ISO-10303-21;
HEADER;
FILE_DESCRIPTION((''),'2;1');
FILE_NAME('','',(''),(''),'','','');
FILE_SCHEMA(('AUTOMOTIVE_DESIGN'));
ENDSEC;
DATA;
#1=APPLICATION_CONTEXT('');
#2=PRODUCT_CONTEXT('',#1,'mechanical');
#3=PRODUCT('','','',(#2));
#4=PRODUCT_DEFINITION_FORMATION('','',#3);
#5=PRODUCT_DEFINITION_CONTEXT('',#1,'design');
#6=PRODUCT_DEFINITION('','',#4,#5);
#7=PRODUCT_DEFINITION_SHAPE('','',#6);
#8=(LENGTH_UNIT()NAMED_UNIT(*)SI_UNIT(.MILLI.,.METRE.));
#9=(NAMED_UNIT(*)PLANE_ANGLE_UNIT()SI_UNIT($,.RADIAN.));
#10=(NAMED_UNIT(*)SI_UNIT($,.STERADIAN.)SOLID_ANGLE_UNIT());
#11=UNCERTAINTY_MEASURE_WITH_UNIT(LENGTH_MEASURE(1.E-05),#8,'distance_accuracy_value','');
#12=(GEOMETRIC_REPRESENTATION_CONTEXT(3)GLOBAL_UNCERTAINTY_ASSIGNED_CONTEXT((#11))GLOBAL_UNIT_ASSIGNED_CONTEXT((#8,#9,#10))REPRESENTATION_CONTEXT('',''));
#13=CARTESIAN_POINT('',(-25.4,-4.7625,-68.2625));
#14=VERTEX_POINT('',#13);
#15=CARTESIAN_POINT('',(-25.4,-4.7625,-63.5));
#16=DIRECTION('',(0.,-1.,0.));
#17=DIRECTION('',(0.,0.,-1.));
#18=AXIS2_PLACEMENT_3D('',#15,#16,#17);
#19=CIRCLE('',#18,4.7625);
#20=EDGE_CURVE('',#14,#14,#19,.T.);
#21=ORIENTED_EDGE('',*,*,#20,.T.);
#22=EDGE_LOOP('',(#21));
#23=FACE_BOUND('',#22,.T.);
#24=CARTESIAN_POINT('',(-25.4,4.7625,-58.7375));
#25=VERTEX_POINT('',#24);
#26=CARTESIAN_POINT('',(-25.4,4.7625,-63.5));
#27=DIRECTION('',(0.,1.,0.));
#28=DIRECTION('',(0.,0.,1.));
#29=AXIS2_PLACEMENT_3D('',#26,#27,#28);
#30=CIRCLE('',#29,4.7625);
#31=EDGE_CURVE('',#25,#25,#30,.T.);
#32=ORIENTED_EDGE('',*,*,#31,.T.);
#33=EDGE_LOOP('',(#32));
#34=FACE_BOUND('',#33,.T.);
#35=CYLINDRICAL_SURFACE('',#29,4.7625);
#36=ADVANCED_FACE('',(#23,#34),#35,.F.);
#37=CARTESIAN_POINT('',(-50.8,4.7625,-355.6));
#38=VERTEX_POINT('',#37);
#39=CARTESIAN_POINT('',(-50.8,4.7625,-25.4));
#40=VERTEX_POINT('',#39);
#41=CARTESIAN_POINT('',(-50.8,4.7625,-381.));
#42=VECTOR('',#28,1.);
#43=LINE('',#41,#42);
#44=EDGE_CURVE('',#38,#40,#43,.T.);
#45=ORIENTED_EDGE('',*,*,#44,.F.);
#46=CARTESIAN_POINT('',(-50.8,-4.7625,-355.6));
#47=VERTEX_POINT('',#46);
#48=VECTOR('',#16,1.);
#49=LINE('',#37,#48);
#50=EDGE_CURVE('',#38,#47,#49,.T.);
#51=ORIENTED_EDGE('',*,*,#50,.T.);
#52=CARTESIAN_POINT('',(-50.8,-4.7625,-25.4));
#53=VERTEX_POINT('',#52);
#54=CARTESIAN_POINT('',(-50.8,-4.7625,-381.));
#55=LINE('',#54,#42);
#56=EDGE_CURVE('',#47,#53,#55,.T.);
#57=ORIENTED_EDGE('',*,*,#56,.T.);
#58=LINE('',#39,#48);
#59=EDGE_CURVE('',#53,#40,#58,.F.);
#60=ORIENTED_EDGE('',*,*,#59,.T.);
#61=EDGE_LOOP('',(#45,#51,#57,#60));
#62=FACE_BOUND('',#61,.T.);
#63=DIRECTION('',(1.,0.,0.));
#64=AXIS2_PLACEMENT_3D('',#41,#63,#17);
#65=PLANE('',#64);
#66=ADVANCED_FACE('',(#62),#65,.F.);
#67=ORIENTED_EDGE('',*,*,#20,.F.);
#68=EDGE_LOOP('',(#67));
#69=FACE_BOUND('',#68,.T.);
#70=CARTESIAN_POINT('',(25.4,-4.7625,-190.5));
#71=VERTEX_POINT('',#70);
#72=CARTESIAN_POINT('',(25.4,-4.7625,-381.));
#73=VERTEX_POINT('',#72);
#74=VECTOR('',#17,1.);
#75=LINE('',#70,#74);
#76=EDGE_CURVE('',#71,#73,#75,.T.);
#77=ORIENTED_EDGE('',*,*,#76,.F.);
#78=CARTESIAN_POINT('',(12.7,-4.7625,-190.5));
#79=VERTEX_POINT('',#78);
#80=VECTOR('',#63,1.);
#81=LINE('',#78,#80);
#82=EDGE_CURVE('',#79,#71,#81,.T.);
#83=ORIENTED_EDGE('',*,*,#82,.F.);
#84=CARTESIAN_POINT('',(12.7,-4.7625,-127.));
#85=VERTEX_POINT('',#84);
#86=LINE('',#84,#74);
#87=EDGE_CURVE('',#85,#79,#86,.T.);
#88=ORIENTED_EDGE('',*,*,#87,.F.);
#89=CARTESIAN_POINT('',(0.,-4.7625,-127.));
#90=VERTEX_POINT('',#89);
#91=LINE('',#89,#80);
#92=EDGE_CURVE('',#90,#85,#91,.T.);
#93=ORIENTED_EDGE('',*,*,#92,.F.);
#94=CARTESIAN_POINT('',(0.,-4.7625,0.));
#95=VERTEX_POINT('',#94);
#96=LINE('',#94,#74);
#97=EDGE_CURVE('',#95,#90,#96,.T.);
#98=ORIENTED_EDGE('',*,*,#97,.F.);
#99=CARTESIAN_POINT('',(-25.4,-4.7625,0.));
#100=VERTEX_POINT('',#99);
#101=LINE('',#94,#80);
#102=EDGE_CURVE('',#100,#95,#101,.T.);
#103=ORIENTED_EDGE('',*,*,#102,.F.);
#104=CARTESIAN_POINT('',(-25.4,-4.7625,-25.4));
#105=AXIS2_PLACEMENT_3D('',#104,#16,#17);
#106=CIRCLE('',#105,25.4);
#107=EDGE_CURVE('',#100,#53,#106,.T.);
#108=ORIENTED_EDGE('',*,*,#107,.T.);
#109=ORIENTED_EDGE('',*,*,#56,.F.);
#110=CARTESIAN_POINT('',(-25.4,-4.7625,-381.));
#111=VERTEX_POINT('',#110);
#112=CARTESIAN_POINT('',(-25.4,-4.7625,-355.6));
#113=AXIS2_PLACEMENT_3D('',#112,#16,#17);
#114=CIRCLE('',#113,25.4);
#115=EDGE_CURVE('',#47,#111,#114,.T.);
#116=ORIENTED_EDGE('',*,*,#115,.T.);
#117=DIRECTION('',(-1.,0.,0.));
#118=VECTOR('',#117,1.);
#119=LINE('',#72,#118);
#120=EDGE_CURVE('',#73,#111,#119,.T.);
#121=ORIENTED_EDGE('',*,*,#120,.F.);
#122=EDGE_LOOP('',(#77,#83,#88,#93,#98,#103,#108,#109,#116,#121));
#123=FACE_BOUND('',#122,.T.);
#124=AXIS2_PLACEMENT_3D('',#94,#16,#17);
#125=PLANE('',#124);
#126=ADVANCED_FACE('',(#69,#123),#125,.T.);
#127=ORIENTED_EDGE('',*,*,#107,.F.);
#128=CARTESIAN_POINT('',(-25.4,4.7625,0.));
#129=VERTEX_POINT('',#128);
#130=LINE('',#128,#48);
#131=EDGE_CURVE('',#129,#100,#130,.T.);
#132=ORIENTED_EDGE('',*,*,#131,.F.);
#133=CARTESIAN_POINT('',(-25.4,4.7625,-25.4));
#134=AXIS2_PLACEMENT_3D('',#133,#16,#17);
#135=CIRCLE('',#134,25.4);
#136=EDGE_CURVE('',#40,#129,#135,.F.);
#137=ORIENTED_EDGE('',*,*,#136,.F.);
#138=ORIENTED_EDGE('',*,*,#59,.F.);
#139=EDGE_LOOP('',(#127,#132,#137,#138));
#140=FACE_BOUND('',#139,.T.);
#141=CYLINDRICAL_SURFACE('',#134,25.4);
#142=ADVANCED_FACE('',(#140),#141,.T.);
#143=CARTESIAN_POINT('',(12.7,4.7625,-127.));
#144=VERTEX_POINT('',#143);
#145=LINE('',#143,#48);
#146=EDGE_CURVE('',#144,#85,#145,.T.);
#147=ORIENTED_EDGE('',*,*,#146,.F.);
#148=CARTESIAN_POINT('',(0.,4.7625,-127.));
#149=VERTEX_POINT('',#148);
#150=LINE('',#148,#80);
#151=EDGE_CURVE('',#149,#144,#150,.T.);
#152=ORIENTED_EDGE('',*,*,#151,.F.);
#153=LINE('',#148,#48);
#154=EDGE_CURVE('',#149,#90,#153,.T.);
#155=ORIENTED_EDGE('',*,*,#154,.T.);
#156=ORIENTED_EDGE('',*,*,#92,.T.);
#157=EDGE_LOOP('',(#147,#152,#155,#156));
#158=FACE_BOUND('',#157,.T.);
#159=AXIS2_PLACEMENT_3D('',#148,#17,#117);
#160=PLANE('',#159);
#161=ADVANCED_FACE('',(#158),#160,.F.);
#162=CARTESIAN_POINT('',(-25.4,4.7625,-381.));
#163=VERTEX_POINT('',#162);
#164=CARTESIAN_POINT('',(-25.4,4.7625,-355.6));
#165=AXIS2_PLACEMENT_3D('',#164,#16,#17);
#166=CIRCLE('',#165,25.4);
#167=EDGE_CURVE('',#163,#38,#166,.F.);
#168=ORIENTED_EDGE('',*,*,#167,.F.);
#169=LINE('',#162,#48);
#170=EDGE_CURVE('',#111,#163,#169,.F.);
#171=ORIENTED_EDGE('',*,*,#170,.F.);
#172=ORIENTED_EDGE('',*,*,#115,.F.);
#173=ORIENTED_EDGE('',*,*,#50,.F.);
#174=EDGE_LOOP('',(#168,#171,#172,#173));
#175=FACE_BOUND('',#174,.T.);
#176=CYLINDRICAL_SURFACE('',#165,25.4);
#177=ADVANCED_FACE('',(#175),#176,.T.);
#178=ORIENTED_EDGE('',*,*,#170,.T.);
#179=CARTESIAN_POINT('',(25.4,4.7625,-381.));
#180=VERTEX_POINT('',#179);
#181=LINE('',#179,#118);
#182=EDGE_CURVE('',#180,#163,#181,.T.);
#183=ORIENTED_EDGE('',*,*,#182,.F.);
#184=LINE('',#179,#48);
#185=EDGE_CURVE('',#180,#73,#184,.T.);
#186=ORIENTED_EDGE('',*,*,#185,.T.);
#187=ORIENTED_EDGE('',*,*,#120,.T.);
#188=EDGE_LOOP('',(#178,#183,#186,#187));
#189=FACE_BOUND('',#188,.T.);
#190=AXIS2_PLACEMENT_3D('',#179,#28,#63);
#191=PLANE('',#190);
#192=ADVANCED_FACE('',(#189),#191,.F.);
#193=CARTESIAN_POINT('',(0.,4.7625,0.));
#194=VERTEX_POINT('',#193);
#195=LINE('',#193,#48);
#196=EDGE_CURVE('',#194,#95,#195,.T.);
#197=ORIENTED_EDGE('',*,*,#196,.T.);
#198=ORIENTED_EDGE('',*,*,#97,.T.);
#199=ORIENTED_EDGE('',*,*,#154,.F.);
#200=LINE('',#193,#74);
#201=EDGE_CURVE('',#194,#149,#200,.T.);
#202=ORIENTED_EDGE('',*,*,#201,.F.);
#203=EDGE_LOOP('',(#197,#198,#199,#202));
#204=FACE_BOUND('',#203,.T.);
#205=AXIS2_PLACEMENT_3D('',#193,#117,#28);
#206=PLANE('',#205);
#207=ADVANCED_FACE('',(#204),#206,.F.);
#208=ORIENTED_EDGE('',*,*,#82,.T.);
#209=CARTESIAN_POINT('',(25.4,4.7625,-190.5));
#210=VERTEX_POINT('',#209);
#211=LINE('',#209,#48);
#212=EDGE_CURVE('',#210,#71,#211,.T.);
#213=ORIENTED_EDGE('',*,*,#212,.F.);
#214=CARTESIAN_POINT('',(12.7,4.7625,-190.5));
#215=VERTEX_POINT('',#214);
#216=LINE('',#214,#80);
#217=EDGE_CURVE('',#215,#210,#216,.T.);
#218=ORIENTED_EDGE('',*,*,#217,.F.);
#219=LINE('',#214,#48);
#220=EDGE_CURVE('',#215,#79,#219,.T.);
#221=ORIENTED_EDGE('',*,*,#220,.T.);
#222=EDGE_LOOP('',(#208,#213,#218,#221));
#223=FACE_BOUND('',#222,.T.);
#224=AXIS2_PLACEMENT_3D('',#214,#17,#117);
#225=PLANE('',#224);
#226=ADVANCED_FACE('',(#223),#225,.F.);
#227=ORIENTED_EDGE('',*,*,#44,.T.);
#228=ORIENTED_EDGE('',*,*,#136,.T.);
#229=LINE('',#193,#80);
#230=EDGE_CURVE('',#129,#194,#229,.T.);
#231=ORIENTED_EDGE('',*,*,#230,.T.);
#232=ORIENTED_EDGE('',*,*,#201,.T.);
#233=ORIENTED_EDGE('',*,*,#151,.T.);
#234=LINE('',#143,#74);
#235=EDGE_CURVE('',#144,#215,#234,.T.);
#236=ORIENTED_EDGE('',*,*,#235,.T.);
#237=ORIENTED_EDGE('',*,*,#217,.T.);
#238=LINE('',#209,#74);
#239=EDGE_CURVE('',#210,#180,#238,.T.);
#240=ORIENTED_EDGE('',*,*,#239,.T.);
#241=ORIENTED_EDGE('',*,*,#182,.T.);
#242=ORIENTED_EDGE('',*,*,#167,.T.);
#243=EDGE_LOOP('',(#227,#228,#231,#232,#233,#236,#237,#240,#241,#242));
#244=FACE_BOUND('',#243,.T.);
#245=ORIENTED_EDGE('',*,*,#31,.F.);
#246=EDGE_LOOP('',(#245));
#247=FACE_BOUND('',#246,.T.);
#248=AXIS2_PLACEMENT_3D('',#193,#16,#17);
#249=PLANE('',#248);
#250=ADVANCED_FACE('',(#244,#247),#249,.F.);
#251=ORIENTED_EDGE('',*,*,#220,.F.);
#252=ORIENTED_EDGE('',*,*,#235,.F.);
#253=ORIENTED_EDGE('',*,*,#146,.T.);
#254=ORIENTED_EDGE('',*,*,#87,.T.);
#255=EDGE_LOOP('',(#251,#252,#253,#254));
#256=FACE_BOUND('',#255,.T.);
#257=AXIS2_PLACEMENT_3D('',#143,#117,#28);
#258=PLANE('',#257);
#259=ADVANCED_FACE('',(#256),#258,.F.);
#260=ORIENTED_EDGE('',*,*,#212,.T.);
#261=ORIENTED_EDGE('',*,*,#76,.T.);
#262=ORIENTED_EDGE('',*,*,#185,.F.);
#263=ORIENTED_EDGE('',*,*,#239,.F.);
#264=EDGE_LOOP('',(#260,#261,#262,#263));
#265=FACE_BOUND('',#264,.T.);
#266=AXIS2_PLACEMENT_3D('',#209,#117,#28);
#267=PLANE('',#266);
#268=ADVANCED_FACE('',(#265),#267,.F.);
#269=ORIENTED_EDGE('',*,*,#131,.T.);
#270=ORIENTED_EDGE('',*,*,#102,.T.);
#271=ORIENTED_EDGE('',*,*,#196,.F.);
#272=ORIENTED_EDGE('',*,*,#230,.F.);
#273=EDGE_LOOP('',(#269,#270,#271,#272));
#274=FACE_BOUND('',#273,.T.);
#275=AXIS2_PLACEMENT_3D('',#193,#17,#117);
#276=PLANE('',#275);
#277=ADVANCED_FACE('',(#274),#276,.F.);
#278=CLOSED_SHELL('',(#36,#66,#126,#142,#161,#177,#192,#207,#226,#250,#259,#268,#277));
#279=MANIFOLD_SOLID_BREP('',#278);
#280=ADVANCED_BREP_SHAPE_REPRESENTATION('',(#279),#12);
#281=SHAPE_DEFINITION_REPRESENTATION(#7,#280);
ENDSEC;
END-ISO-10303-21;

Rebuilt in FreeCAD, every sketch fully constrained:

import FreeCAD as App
import Part
import Sketcher
from FreeCAD import Vector
Q = App.Units.Quantity


def edges_at(feature, points):
    """Names of the edges that pass closest to the given points."""
    edges = feature.Shape.Edges
    near = lambda p: min(range(len(edges)), key=lambda i: edges[i].distToShape(Part.Vertex(*p))[0])
    return sorted({f"Edge{near(p) + 1}" for p in points})


def add_polygon(sketch, points):
    """Adds a closed chain of lines whose ends are joined by coincident constraints."""
    first, n = sketch.GeometryCount, len(points)
    for a, b in zip(points, points[1:] + points[:1]):
        sketch.addGeometry(Part.LineSegment(App.Vector(*a, 0), App.Vector(*b, 0)), False)
    for i in range(n):
        sketch.addConstraint(Sketcher.Constraint("Coincident", first + i, 2, first + (i + 1) % n, 1))

doc = App.newDocument("Part")
body = doc.addObject("PartDesign::Body", "Body")

sketch1 = body.newObject("Sketcher::SketchObject", "Sketch")
sketch1.AttachmentSupport = (doc.getObject("XZ_Plane"), [""])
sketch1.MapMode = "FlatFace"
add_polygon(sketch1, [(-50.8, 0), (0, 0), (0, -127), (12.7, -127), (12.7, -190.5), (25.4, -190.5), (25.4, -381), (-50.8, -381)])
sketch1.addConstraint([
    Sketcher.Constraint("Horizontal", 0),
    Sketcher.Constraint("Vertical", 1),
    Sketcher.Constraint("Horizontal", 2),
    Sketcher.Constraint("Vertical", 3),
    Sketcher.Constraint("Horizontal", 4),
    Sketcher.Constraint("Vertical", 5),
    Sketcher.Constraint("Horizontal", 6),
    Sketcher.Constraint("Vertical", 7),
    Sketcher.Constraint("Coincident", 0, 2, -1, 1),
    Sketcher.Constraint("Equal", 2, 4),
    Sketcher.Constraint("DistanceX", 0, 1, 0, 2, Q("2 in")),
    Sketcher.Constraint("DistanceX", 6, 2, 6, 1, Q("3 in")),
    Sketcher.Constraint("DistanceY", 1, 2, 1, 1, Q("5 in")),
    Sketcher.Constraint("DistanceY", 7, 1, 7, 2, Q("15 in")),
    Sketcher.Constraint("DistanceY", 3, 2, 3, 1, Q("2.5 in")),
])
pad1 = body.newObject("PartDesign::Pad", "Pad")
pad1.Profile = sketch1
pad1.Length = Q("0.375 in")
pad1.Midplane = True
doc.recompute()

fillet = body.newObject("PartDesign::Fillet", "Fillet")
fillet.Base = (pad1, edges_at(pad1, [(-50.8, 0, 0), (-50.8, 0, -381)]))
fillet.Radius = Q("1 in")

sketch2 = body.newObject("Sketcher::SketchObject", "Sketch001")
sketch2.AttachmentSupport = (doc.getObject("XZ_Plane"), [""])
sketch2.MapMode = "FlatFace"
sketch2.AttachmentOffset = App.Placement(Vector(0, 0, -0.1875 * 25.4), App.Rotation())
sketch2.addGeometry(Part.Circle(Vector(-25.4, -63.5, 0), Vector(0, 0, 1), 4.7625), False)
sketch2.addConstraint([
    Sketcher.Constraint("Diameter", 0, Q("0.375 in")),
    Sketcher.Constraint("DistanceX", 0, 3, -1, 1, Q("1 in")),
    Sketcher.Constraint("DistanceY", 0, 3, -1, 1, Q("2.5 in")),
])
doc.recompute()
hole = body.newObject("PartDesign::Hole", "Hole")
hole.Profile = sketch2
hole.ThreadType = "None"
hole.Diameter = Q("0.375 in")
hole.DepthType = "Dimension"
hole.Depth = Q("0.46 in")
hole.DrillPoint = "Angled"
hole.DrillPointAngle = 118
hole.Reversed = True

doc.recompute()
